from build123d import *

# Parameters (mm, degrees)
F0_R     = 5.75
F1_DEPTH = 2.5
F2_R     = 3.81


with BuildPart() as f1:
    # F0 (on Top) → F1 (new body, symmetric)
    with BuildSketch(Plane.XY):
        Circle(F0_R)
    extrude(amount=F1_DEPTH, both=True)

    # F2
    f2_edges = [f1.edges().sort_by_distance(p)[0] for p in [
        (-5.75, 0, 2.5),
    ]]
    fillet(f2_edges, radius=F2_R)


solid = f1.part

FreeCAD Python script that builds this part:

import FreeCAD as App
import Part
import Sketcher

V = App.Vector


def edges_at(feature, points):
    """Names of the edges that pass closest to the given points."""
    edges = feature.Shape.Edges
    near = lambda p: min(range(len(edges)), key=lambda i: edges[i].distToShape(Part.Vertex(*p))[0])
    return sorted({f"Edge{near(p) + 1}" for p in points})

doc = App.newDocument("Part")
body = doc.addObject("PartDesign::Body", "Body")

# Sketch on XY plane
sketch1 = doc.addObject("Sketcher::SketchObject", "Sketch")
body.addObject(sketch1)
sketch1.AttachmentSupport = (doc.XY_Plane, [""])
sketch1.MapMode = "FlatFace"
sketch1.addGeometry(Part.Circle(V(0, 0, 0), V(0, 0, 1), 6), False)
sketch1.addConstraint([
    Sketcher.Constraint("Coincident", 0, 3, -1, 1),
    Sketcher.Constraint("Diameter", 0, 11.5),
])
pad1 = doc.addObject("PartDesign::Pad", "Pad")
body.addObject(pad1)
pad1.Profile = sketch1
pad1.Length = 5
pad1.Midplane = True
doc.recompute()

fillet = doc.addObject("PartDesign::Fillet", "Fillet")
body.addObject(fillet)
fillet.Base = (pad1, edges_at(pad1, [(-5.75, 0, 2.5)]))
fillet.Radius = 3.81

doc.recompute()
